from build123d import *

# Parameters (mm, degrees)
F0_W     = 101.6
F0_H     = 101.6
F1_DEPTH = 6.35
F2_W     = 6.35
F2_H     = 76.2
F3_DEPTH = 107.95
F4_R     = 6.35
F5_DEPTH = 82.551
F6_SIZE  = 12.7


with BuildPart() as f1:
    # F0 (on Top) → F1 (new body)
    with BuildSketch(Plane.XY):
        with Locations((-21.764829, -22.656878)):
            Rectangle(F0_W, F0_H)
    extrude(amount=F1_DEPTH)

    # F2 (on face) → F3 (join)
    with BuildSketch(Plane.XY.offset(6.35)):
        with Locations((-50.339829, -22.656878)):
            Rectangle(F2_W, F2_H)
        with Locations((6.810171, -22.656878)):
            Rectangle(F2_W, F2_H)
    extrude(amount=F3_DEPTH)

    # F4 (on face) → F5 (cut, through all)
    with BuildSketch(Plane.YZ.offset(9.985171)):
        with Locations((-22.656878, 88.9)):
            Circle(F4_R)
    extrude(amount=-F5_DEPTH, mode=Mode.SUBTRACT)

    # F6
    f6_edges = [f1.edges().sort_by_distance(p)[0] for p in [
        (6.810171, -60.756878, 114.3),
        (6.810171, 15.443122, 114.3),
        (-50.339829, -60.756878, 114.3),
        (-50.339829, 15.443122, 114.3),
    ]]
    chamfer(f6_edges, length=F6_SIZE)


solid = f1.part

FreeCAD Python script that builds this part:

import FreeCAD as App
import Part
import Sketcher
Q = App.Units.Quantity


def edges_at(feature, points):
    """Names of the edges that pass closest to the given points."""
    edges = feature.Shape.Edges
    near = lambda p: min(range(len(edges)), key=lambda i: edges[i].distToShape(Part.Vertex(*p))[0])
    return sorted({f"Edge{near(p) + 1}" for p in points})


def add_polygon(sketch, points):
    """Adds a closed chain of lines whose ends are joined by coincident constraints."""
    first, n = sketch.GeometryCount, len(points)
    for a, b in zip(points, points[1:] + points[:1]):
        sketch.addGeometry(Part.LineSegment(App.Vector(*a, 0), App.Vector(*b, 0)), False)
    for i in range(n):
        sketch.addConstraint(Sketcher.Constraint("Coincident", first + i, 2, first + (i + 1) % n, 1))

doc = App.newDocument("Part")
body = doc.addObject("PartDesign::Body", "Body")

# Sketch on XY plane
sketch1 = body.newObject("Sketcher::SketchObject", "Sketch")
sketch1.AttachmentSupport = (doc.getObject("XY_Plane"), [""])
sketch1.MapMode = "FlatFace"
add_polygon(sketch1, [(-72.564829, 28.143122), (-72.564829, -73.456878), (29.035171, -73.456878), (29.035171, 28.143122)])  # lines 0-3
sketch1.addConstraint([
    Sketcher.Constraint("Vertical", 0),
    Sketcher.Constraint("Horizontal", 1),
    Sketcher.Constraint("Vertical", 2),
    Sketcher.Constraint("Horizontal", 3),
    Sketcher.Constraint("Equal", 3, 0),
    Sketcher.Constraint("DistanceX", 1, 1, 1, 2, Q("4 in")),
    Sketcher.Constraint("DistanceX", 0, 2, -1, 1, Q("72.564829 mm")),
    Sketcher.Constraint("DistanceY", 0, 2, -1, 1, Q("73.456878 mm")),
])
pad1 = body.newObject("PartDesign::Pad", "Pad")
pad1.Profile = sketch1
pad1.Length = Q("0.25 in")

# Sketch on XY plane
sketch2 = body.newObject("Sketcher::SketchObject", "Sketch001")
sketch2.AttachmentSupport = (doc.getObject("XY_Plane"), [""])
sketch2.MapMode = "FlatFace"
sketch2.AttachmentOffset = App.Placement(App.Vector(0, 0, 0.25 * 25.4), App.Rotation())
add_polygon(sketch2, [(-53.514829, 15.443122), (-53.514829, -60.756878), (-47.164829, -60.756878), (-47.164829, 15.443122)])  # lines 0-3
add_polygon(sketch2, [(3.635171, 15.443122), (3.635171, -60.756878), (9.985171, -60.756878), (9.985171, 15.443122)])  # lines 4-7
sketch2.addConstraint([
    Sketcher.Constraint("Vertical", 0),
    Sketcher.Constraint("Horizontal", 1),
    Sketcher.Constraint("Vertical", 2),
    Sketcher.Constraint("Horizontal", 3),
    Sketcher.Constraint("Vertical", 4),
    Sketcher.Constraint("Horizontal", 5),
    Sketcher.Constraint("Vertical", 6),
    Sketcher.Constraint("Horizontal", 7),
    Sketcher.Constraint("Horizontal", 1, 2, 4, 2),
    Sketcher.Constraint("Horizontal", 3, 2, 6, 2),
    Sketcher.Constraint("Equal", 3, 5),
    Sketcher.Constraint("DistanceY", 0, 2, 0, 1, Q("3 in")),
    Sketcher.Constraint("DistanceX", 1, 2, 4, 2, Q("2 in")),
    Sketcher.Constraint("DistanceX", 1, 1, 1, 2, Q("0.25 in")),
    Sketcher.Constraint("DistanceX", 0, 2, -1, 1, Q("53.514829 mm")),
    Sketcher.Constraint("DistanceY", 0, 2, -1, 1, Q("60.756878 mm")),
])
pad2 = body.newObject("PartDesign::Pad", "Pad001")
pad2.Profile = sketch2
pad2.Length = Q("4.25 in")

# Sketch on YZ plane
sketch3 = body.newObject("Sketcher::SketchObject", "Sketch002")
sketch3.AttachmentSupport = (doc.getObject("YZ_Plane"), [""])
sketch3.MapMode = "FlatFace"
sketch3.AttachmentOffset = App.Placement(App.Vector(0, 0, 9.985171), App.Rotation())
sketch3.addGeometry(Part.Circle(App.Vector(-22.656878, 88.9, 0), App.Vector(0, 0, 1), 6.35), False)
sketch3.addConstraint([
    Sketcher.Constraint("Diameter", 0, Q("0.5 in")),
    Sketcher.Constraint("DistanceY", -1, 1, 0, 3, Q("3.5 in")),
    Sketcher.Constraint("DistanceX", 0, 3, -1, 1, Q("22.656878 mm")),
])
pocket1 = body.newObject("PartDesign::Pocket", "Pocket")
pocket1.Profile = sketch3
pocket1.Type = "ThroughAll"
doc.recompute()

chamfer = body.newObject("PartDesign::Chamfer", "Chamfer")
chamfer.Base = (pocket1, edges_at(pocket1, [
    (6.81, -60.757, 114.3),
    (6.81, 15.443, 114.3),
    (-50.34, -60.757, 114.3),
    (-50.34, 15.443, 114.3),
]))
chamfer.Size = Q("0.5 in")

doc.recompute()
